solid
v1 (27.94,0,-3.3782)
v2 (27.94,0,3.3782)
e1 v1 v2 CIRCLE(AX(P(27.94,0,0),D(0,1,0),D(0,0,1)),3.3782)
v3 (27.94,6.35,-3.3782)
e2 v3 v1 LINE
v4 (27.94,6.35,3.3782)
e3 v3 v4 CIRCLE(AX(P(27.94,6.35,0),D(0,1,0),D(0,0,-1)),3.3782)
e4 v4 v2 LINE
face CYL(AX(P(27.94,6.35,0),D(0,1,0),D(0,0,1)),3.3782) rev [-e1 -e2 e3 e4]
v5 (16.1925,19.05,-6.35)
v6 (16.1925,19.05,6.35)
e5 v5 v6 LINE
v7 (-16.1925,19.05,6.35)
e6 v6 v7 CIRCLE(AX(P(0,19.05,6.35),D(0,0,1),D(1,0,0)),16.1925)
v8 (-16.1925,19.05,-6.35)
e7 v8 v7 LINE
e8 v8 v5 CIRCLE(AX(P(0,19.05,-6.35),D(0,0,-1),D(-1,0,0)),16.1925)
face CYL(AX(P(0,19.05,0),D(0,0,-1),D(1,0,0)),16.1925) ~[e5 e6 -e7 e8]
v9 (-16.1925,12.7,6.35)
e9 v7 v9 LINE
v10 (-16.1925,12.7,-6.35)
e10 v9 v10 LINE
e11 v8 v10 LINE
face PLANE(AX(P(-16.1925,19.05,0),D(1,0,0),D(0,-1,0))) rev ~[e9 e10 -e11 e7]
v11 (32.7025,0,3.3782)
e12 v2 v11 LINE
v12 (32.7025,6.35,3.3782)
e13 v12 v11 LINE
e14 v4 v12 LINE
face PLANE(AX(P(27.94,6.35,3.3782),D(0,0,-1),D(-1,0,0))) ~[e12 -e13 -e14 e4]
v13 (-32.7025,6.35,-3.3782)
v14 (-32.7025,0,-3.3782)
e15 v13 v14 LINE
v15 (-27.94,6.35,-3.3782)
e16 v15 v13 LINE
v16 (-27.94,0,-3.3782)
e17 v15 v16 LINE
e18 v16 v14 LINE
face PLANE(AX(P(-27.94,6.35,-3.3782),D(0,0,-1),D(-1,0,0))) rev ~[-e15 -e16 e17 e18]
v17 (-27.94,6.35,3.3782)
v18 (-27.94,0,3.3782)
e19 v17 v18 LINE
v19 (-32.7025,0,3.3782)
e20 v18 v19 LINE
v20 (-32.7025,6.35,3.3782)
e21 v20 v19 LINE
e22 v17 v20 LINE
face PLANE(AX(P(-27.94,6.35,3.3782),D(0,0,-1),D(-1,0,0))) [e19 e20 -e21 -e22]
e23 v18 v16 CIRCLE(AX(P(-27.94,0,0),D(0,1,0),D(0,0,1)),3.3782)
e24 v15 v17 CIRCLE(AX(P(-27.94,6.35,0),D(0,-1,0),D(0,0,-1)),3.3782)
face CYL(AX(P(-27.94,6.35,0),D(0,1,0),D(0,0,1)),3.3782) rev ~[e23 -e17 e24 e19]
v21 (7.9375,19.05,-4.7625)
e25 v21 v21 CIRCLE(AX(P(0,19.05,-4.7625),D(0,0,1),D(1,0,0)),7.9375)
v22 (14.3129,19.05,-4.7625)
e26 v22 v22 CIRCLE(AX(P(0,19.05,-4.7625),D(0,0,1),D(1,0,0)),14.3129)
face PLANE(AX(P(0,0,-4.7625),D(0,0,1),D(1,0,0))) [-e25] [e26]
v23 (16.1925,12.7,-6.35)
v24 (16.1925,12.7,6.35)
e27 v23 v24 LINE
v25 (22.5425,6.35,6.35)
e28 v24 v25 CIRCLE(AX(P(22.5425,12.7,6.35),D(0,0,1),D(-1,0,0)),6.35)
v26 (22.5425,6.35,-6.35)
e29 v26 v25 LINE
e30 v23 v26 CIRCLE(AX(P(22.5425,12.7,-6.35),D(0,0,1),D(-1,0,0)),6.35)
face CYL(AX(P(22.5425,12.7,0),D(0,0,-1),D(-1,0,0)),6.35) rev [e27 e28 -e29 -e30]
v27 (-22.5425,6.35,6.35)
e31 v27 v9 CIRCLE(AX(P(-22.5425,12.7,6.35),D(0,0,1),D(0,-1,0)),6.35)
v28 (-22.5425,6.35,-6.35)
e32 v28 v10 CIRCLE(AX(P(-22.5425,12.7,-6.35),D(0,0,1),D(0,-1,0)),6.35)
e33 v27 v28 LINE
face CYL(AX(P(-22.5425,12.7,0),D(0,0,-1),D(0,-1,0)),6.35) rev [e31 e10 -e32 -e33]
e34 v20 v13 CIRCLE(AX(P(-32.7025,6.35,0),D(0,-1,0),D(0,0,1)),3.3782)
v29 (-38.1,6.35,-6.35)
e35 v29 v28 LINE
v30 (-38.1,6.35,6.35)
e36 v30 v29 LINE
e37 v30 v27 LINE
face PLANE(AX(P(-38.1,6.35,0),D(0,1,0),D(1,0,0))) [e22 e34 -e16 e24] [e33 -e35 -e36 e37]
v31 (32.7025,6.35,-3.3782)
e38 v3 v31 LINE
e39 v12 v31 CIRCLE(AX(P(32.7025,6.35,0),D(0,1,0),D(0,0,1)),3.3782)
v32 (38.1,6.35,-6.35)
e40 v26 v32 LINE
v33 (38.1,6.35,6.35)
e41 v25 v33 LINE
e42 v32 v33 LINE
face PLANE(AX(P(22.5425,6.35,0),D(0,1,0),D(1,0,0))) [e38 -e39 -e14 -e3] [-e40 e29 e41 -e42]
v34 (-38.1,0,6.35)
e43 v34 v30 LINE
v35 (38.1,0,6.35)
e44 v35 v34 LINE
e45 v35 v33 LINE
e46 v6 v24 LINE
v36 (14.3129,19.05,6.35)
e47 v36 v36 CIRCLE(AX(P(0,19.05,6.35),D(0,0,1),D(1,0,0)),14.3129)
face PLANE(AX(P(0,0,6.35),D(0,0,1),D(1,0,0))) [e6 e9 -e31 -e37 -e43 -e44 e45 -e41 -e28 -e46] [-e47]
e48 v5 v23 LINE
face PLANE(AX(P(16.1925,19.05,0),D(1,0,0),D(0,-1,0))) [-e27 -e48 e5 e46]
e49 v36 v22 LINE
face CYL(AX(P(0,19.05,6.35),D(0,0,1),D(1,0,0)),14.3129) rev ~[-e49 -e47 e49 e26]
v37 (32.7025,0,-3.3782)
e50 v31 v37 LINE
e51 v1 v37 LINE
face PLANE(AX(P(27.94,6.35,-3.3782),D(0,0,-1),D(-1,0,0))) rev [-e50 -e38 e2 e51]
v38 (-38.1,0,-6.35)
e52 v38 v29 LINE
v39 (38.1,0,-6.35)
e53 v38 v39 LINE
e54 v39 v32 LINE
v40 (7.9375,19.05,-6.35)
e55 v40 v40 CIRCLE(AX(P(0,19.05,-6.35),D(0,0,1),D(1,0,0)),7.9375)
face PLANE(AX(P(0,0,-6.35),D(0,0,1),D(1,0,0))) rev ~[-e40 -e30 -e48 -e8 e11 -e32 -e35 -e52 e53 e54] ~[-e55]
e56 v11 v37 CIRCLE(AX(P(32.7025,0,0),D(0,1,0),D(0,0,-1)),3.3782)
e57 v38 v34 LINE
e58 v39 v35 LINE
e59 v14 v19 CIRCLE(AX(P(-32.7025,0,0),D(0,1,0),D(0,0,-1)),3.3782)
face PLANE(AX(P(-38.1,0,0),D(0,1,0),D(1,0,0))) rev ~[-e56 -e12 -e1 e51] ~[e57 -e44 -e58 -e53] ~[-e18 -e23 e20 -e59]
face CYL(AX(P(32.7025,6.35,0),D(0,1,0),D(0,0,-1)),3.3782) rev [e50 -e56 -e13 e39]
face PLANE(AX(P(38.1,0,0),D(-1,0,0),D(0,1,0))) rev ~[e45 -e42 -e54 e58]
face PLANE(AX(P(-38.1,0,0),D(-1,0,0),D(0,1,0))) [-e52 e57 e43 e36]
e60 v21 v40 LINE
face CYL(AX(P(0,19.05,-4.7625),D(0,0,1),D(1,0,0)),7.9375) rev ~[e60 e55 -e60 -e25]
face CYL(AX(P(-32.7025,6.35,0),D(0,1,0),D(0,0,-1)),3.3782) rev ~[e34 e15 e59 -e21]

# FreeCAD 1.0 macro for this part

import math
import FreeCAD as App
import Part
import Sketcher

V = App.Vector
Q = App.Units.Quantity

doc = App.newDocument("Part")
body = doc.addObject("PartDesign::Body", "Body")

# Sketch on XY plane
sketch1 = body.newObject("Sketcher::SketchObject", "Sketch")
sketch1.AttachmentSupport = (doc.getObject("XY_Plane"), [""])
sketch1.MapMode = "FlatFace"
sketch1.addGeometry([
    Part.LineSegment(V(-38, 6, 0), V(-38, 0, 0)),  # 0
    Part.LineSegment(V(-38, 0, 0), V(38, 0, 0)),  # 1
    Part.LineSegment(V(38, 0, 0), V(38, 6, 0)),  # 2
    Part.LineSegment(V(38, 6, 0), V(23, 6, 0)),  # 3
    Part.ArcOfCircle(Part.Circle(V(23, 13, 0), V(0, 0, 1), 6), math.radians(180), math.radians(270)),  # 4
    Part.LineSegment(V(16, 13, 0), V(16, 19, 0)),  # 5
    Part.ArcOfCircle(Part.Circle(V(0, 19, 0), V(0, 0, 1), 16), math.radians(0), math.radians(180)),  # 6
    Part.LineSegment(V(-16, 19, 0), V(-16, 13, 0)),  # 7
    Part.ArcOfCircle(Part.Circle(V(-23, 13, 0), V(0, 0, 1), 6), math.radians(-90), math.radians(0)),  # 8
    Part.LineSegment(V(-23, 6, 0), V(-38, 6, 0)),  # 9
], False)
sketch1.addConstraint([
    Sketcher.Constraint("Coincident", 0, 2, 1, 1),
    Sketcher.Constraint("Coincident", 1, 2, 2, 1),
    Sketcher.Constraint("Coincident", 2, 2, 3, 1),
    Sketcher.Constraint("Tangent", 3, 2, 4, 2),
    Sketcher.Constraint("Tangent", 4, 1, 5, 1),
    Sketcher.Constraint("Tangent", 5, 2, 6, 1),
    Sketcher.Constraint("Tangent", 6, 2, 7, 1),
    Sketcher.Constraint("Tangent", 7, 2, 8, 2),
    Sketcher.Constraint("Tangent", 8, 1, 9, 1),
    Sketcher.Constraint("Coincident", 9, 2, 0, 1),
    Sketcher.Constraint("Vertical", 0),
    Sketcher.Constraint("Horizontal", 1),
    Sketcher.Constraint("Vertical", 2),
    Sketcher.Constraint("Horizontal", 3),
    Sketcher.Constraint("Vertical", 5),
    Sketcher.Constraint("Vertical", 7),
    Sketcher.Constraint("Horizontal", 9),
    Sketcher.Constraint("Equal", 4, 8),
    Sketcher.Constraint("Symmetric", 0, 2, 1, 2, -1, 1),
    Sketcher.Constraint("Symmetric", 4, 3, 8, 3, -2),
    Sketcher.Constraint("Equal", 2, 5),
    Sketcher.Constraint("DistanceX", 1, 1, 1, 2, Q("3 in")),
    Sketcher.Constraint("Radius", 4, Q("0.25 in")),
    Sketcher.Constraint("DistanceY", 0, 2, 0, 1, Q("0.25 in")),
    Sketcher.Constraint("Radius", 6, Q("0.6375 in")),
])
pad1 = body.newObject("PartDesign::Pad", "Pad")
pad1.Profile = sketch1
pad1.Length = Q("0.5 in")
pad1.Midplane = True

# Sketch on XY plane
sketch2 = body.newObject("Sketcher::SketchObject", "Sketch001")
sketch2.AttachmentSupport = (doc.getObject("XY_Plane"), [""])
sketch2.MapMode = "FlatFace"
sketch2.AttachmentOffset = App.Placement(V(0, 0, 0.25 * 25.4), App.Rotation())
sketch2.addGeometry(Part.Circle(V(0, 19, 0), V(0, 0, 1), 14), False)
sketch2.addConstraint([
    Sketcher.Constraint("PointOnObject", 0, 3, -2),
    Sketcher.Constraint("Diameter", 0, Q("1.127 in")),
    Sketcher.Constraint("DistanceY", -1, 1, 0, 3, Q("0.75 in")),
])
pocket1 = body.newObject("PartDesign::Pocket", "Pocket")
pocket1.Profile = sketch2
pocket1.Length = Q("0.4375 in")

# Sketch on XY plane
sketch3 = body.newObject("Sketcher::SketchObject", "Sketch002")
sketch3.AttachmentSupport = (doc.getObject("XY_Plane"), [""])
sketch3.MapMode = "FlatFace"
sketch3.AttachmentOffset = App.Placement(V(0, 0, -0.1875 * 25.4), App.Rotation())
sketch3.addGeometry(Part.Circle(V(0, 19, 0), V(0, 0, 1), 8), False)
sketch3.addConstraint([
    Sketcher.Constraint("PointOnObject", 0, 3, -2),
    Sketcher.Constraint("Diameter", 0, Q("0.625 in")),
    Sketcher.Constraint("DistanceY", -1, 1, 0, 3, Q("0.75 in")),
])
pocket2 = body.newObject("PartDesign::Pocket", "Pocket001")
pocket2.Profile = sketch3
pocket2.Type = "ThroughAll"

# Sketch on XZ plane
sketch4 = body.newObject("Sketcher::SketchObject", "Sketch003")
sketch4.AttachmentSupport = (doc.getObject("XZ_Plane"), [""])
sketch4.MapMode = "FlatFace"
sketch4.AttachmentOffset = App.Placement(V(0, 0, -0.25 * 25.4), App.Rotation())
sketch4.addGeometry([
    Part.LineSegment(V(-27.9, -3.4, 0), V(-32.7, -3.4, 0)),
    Part.ArcOfCircle(Part.Circle(V(-32.7, 0, 0), V(0, 0, 1), 3.4), math.radians(90), math.radians(270)),
    Part.LineSegment(V(-32.7, 3.4, 0), V(-27.9, 3.4, 0)),
    Part.ArcOfCircle(Part.Circle(V(-27.9, 0, 0), V(0, 0, 1), 3.4), math.radians(-90), math.radians(90)),
], False)
sketch4.addConstraint([
    Sketcher.Constraint("Tangent", 0, 2, 1, 2),
    Sketcher.Constraint("Tangent", 1, 1, 2, 1),
    Sketcher.Constraint("Tangent", 2, 2, 3, 2),
    Sketcher.Constraint("Tangent", 3, 1, 0, 1),
    Sketcher.Constraint("Horizontal", 0),
    Sketcher.Constraint("Horizontal", 2),
    Sketcher.Constraint("PointOnObject", 1, 3, -1),
    Sketcher.Constraint("Radius", 1, Q("0.133 in")),
    Sketcher.Constraint("DistanceX", 0, 2, 0, 1, Q("0.1875 in")),
    Sketcher.Constraint("DistanceX", 3, 3, -1, 1, Q("1.1 in")),
])
pocket3 = body.newObject("PartDesign::Pocket", "Pocket002")
pocket3.Profile = sketch4
pocket3.Type = "ThroughAll"
pocket3.Reversed = True
doc.recompute()

mirrored = body.newObject("PartDesign::Mirrored", "Mirrored")
mirrored.Originals = [pocket3]
mirrored.MirrorPlane = (doc.getObject("YZ_Plane"), [""])
body.Tip = mirrored

doc.recompute()
